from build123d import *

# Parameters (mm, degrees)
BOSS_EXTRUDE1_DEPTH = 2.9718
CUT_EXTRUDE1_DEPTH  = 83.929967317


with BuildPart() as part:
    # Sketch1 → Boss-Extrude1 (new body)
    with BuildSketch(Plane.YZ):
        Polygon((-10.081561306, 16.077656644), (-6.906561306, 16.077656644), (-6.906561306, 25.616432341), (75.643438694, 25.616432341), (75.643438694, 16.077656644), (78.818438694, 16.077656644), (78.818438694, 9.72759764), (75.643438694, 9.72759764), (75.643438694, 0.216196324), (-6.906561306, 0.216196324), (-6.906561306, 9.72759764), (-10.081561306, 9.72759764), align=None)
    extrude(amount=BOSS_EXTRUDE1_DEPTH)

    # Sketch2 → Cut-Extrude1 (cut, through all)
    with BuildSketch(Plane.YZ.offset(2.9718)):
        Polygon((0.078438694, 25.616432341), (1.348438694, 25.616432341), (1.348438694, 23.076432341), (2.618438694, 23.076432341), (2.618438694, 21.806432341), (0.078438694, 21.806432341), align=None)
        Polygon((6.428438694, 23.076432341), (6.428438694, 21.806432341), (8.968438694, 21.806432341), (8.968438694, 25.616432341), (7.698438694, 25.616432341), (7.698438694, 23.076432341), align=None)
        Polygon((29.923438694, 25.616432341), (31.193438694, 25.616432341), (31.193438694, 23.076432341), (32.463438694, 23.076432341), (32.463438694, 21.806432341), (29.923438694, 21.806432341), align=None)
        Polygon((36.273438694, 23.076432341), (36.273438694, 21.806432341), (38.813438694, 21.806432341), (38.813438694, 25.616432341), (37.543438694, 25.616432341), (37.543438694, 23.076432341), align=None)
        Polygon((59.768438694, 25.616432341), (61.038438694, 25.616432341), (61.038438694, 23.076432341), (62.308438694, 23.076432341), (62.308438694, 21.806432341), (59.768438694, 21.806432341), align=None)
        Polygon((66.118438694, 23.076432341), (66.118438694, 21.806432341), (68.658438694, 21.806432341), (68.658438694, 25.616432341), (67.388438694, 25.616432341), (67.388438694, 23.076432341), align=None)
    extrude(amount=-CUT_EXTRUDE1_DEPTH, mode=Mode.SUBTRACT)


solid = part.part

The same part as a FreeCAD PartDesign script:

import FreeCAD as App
import Part
import Sketcher
from FreeCAD import Vector
Q = App.Units.Quantity

doc = App.newDocument("Part")
body = doc.addObject("PartDesign::Body", "Body")

sketch1 = doc.addObject("Sketcher::SketchObject", "Sketch")
body.addObject(sketch1)
sketch1.AttachmentSupport = (doc.YZ_Plane, [""])
sketch1.MapMode = "FlatFace"
sketch1.addGeometry(Part.LineSegment(Vector(-6.9, 16.1, 0), Vector(-10.1, 16.1, 0)), False)
sketch1.addGeometry(Part.LineSegment(Vector(-10.1, 16.1, 0), Vector(-10.1, 9.7, 0)), False)
sketch1.addGeometry(Part.LineSegment(Vector(-10.1, 9.7, 0), Vector(-6.9, 9.7, 0)), False)
sketch1.addGeometry(Part.LineSegment(Vector(-6.9, 9.7, 0), Vector(-6.9, 0.2, 0)), False)
sketch1.addGeometry(Part.LineSegment(Vector(-6.9, 0.2, 0), Vector(75.6, 0.2, 0)), False)
sketch1.addGeometry(Part.LineSegment(Vector(75.6, 0.2, 0), Vector(75.6, 9.7, 0)), False)
sketch1.addGeometry(Part.LineSegment(Vector(75.6, 9.7, 0), Vector(78.8, 9.7, 0)), False)
sketch1.addGeometry(Part.LineSegment(Vector(78.8, 9.7, 0), Vector(78.8, 16.1, 0)), False)
sketch1.addGeometry(Part.LineSegment(Vector(78.8, 16.1, 0), Vector(75.6, 16.1, 0)), False)
sketch1.addGeometry(Part.LineSegment(Vector(75.6, 16.1, 0), Vector(75.6, 25.6, 0)), False)
sketch1.addGeometry(Part.LineSegment(Vector(75.6, 25.6, 0), Vector(-6.9, 25.6, 0)), False)
sketch1.addGeometry(Part.LineSegment(Vector(-6.9, 25.6, 0), Vector(-6.9, 16.1, 0)), False)
sketch1.addConstraint(Sketcher.Constraint("Coincident", 0, 2, 1, 1))
sketch1.addConstraint(Sketcher.Constraint("Coincident", 1, 2, 2, 1))
sketch1.addConstraint(Sketcher.Constraint("Coincident", 2, 2, 3, 1))
sketch1.addConstraint(Sketcher.Constraint("Coincident", 3, 2, 4, 1))
sketch1.addConstraint(Sketcher.Constraint("Coincident", 4, 2, 5, 1))
sketch1.addConstraint(Sketcher.Constraint("Coincident", 5, 2, 6, 1))
sketch1.addConstraint(Sketcher.Constraint("Coincident", 6, 2, 7, 1))
sketch1.addConstraint(Sketcher.Constraint("Coincident", 7, 2, 8, 1))
sketch1.addConstraint(Sketcher.Constraint("Coincident", 8, 2, 9, 1))
sketch1.addConstraint(Sketcher.Constraint("Coincident", 9, 2, 10, 1))
sketch1.addConstraint(Sketcher.Constraint("Coincident", 10, 2, 11, 1))
sketch1.addConstraint(Sketcher.Constraint("Coincident", 11, 2, 0, 1))
sketch1.addConstraint(Sketcher.Constraint("Horizontal", 0))
sketch1.addConstraint(Sketcher.Constraint("Vertical", 1))
sketch1.addConstraint(Sketcher.Constraint("Horizontal", 2))
sketch1.addConstraint(Sketcher.Constraint("Vertical", 3))
sketch1.addConstraint(Sketcher.Constraint("Horizontal", 4))
sketch1.addConstraint(Sketcher.Constraint("Vertical", 5))
sketch1.addConstraint(Sketcher.Constraint("Horizontal", 6))
sketch1.addConstraint(Sketcher.Constraint("Vertical", 7))
sketch1.addConstraint(Sketcher.Constraint("Horizontal", 8))
sketch1.addConstraint(Sketcher.Constraint("Vertical", 9))
sketch1.addConstraint(Sketcher.Constraint("Horizontal", 10))
sketch1.addConstraint(Sketcher.Constraint("Vertical", 11))
sketch1.addConstraint(Sketcher.Constraint("Horizontal", 2, 2, 5, 2))
sketch1.addConstraint(Sketcher.Constraint("Horizontal", 0, 2, 7, 2))
sketch1.addConstraint(Sketcher.Constraint("Vertical", 5, 2, 8, 2))
sketch1.addConstraint(Sketcher.Constraint("Vertical", 3, 2, 10, 2))
sketch1.addConstraint(Sketcher.Constraint("Equal", 2, 6))
sketch1.addConstraint(Sketcher.Constraint("DistanceX", 4, 1, 4, 2, Q("3.25 in")))
sketch1.addConstraint(Sketcher.Constraint("DistanceX", 1, 2, 6, 2, Q("3.5 in")))
sketch1.addConstraint(Sketcher.Constraint("DistanceY", 3, 2, 3, 1, 9.511401))
sketch1.addConstraint(Sketcher.Constraint("DistanceY", 1, 2, 1, 1, 6.350059))
sketch1.addConstraint(Sketcher.Constraint("DistanceY", 9, 1, 9, 2, 9.538776))
sketch1.addConstraint(Sketcher.Constraint("DistanceX", 0, 2, -1, 1, 10.081561))
sketch1.addConstraint(Sketcher.Constraint("DistanceY", -1, 1, 0, 2, 16.077657))
pad1 = doc.addObject("PartDesign::Pad", "Pad")
body.addObject(pad1)
pad1.Profile = sketch1
pad1.Length = Q("0.117 in")

sketch2 = doc.addObject("Sketcher::SketchObject", "Sketch001")
body.addObject(sketch2)
sketch2.AttachmentSupport = (doc.YZ_Plane, [""])
sketch2.MapMode = "FlatFace"
sketch2.AttachmentOffset = App.Placement(Vector(0, 0, 0.117 * 25.4), App.Rotation())
sketch2.addGeometry(Part.LineSegment(Vector(1.3, 25.6, 0), Vector(0.1, 25.6, 0)), False)
sketch2.addGeometry(Part.LineSegment(Vector(0.1, 25.6, 0), Vector(0.1, 21.8, 0)), False)
sketch2.addGeometry(Part.LineSegment(Vector(0.1, 21.8, 0), Vector(2.6, 21.8, 0)), False)
sketch2.addGeometry(Part.LineSegment(Vector(2.6, 21.8, 0), Vector(2.6, 23.1, 0)), False)
sketch2.addGeometry(Part.LineSegment(Vector(2.6, 23.1, 0), Vector(1.3, 23.1, 0)), False)
sketch2.addGeometry(Part.LineSegment(Vector(1.3, 23.1, 0), Vector(1.3, 25.6, 0)), False)
sketch2.addGeometry(Part.LineSegment(Vector(6.4, 23.1, 0), Vector(6.4, 21.8, 0)), False)
sketch2.addGeometry(Part.LineSegment(Vector(6.4, 21.8, 0), Vector(9, 21.8, 0)), False)
sketch2.addGeometry(Part.LineSegment(Vector(9, 21.8, 0), Vector(9, 25.6, 0)), False)
sketch2.addGeometry(Part.LineSegment(Vector(9, 25.6, 0), Vector(7.7, 25.6, 0)), False)
sketch2.addGeometry(Part.LineSegment(Vector(7.7, 25.6, 0), Vector(7.7, 23.1, 0)), False)
sketch2.addGeometry(Part.LineSegment(Vector(7.7, 23.1, 0), Vector(6.4, 23.1, 0)), False)
sketch2.addGeometry(Part.LineSegment(Vector(31.2, 25.6, 0), Vector(29.9, 25.6, 0)), False)
sketch2.addGeometry(Part.LineSegment(Vector(29.9, 25.6, 0), Vector(29.9, 21.8, 0)), False)
sketch2.addGeometry(Part.LineSegment(Vector(29.9, 21.8, 0), Vector(32.5, 21.8, 0)), False)
sketch2.addGeometry(Part.LineSegment(Vector(32.5, 21.8, 0), Vector(32.5, 23.1, 0)), False)
sketch2.addGeometry(Part.LineSegment(Vector(32.5, 23.1, 0), Vector(31.2, 23.1, 0)), False)
sketch2.addGeometry(Part.LineSegment(Vector(31.2, 23.1, 0), Vector(31.2, 25.6, 0)), False)
sketch2.addGeometry(Part.LineSegment(Vector(36.3, 23.1, 0), Vector(36.3, 21.8, 0)), False)
sketch2.addGeometry(Part.LineSegment(Vector(36.3, 21.8, 0), Vector(38.8, 21.8, 0)), False)
sketch2.addGeometry(Part.LineSegment(Vector(38.8, 21.8, 0), Vector(38.8, 25.6, 0)), False)
sketch2.addGeometry(Part.LineSegment(Vector(38.8, 25.6, 0), Vector(37.5, 25.6, 0)), False)
sketch2.addGeometry(Part.LineSegment(Vector(37.5, 25.6, 0), Vector(37.5, 23.1, 0)), False)
sketch2.addGeometry(Part.LineSegment(Vector(37.5, 23.1, 0), Vector(36.3, 23.1, 0)), False)
sketch2.addGeometry(Part.LineSegment(Vector(61, 25.6, 0), Vector(59.8, 25.6, 0)), False)
sketch2.addGeometry(Part.LineSegment(Vector(59.8, 25.6, 0), Vector(59.8, 21.8, 0)), False)
sketch2.addGeometry(Part.LineSegment(Vector(59.8, 21.8, 0), Vector(62.3, 21.8, 0)), False)
sketch2.addGeometry(Part.LineSegment(Vector(62.3, 21.8, 0), Vector(62.3, 23.1, 0)), False)
sketch2.addGeometry(Part.LineSegment(Vector(62.3, 23.1, 0), Vector(61, 23.1, 0)), False)
sketch2.addGeometry(Part.LineSegment(Vector(61, 23.1, 0), Vector(61, 25.6, 0)), False)
sketch2.addGeometry(Part.LineSegment(Vector(66.1, 23.1, 0), Vector(66.1, 21.8, 0)), False)
sketch2.addGeometry(Part.LineSegment(Vector(66.1, 21.8, 0), Vector(68.7, 21.8, 0)), False)
sketch2.addGeometry(Part.LineSegment(Vector(68.7, 21.8, 0), Vector(68.7, 25.6, 0)), False)
sketch2.addGeometry(Part.LineSegment(Vector(68.7, 25.6, 0), Vector(67.4, 25.6, 0)), False)
sketch2.addGeometry(Part.LineSegment(Vector(67.4, 25.6, 0), Vector(67.4, 23.1, 0)), False)
sketch2.addGeometry(Part.LineSegment(Vector(67.4, 23.1, 0), Vector(66.1, 23.1, 0)), False)
sketch2.addConstraint(Sketcher.Constraint("Coincident", 0, 2, 1, 1))
sketch2.addConstraint(Sketcher.Constraint("Coincident", 1, 2, 2, 1))
sketch2.addConstraint(Sketcher.Constraint("Coincident", 2, 2, 3, 1))
sketch2.addConstraint(Sketcher.Constraint("Coincident", 3, 2, 4, 1))
sketch2.addConstraint(Sketcher.Constraint("Coincident", 4, 2, 5, 1))
sketch2.addConstraint(Sketcher.Constraint("Coincident", 5, 2, 0, 1))
sketch2.addConstraint(Sketcher.Constraint("Coincident", 6, 2, 7, 1))
sketch2.addConstraint(Sketcher.Constraint("Coincident", 7, 2, 8, 1))
sketch2.addConstraint(Sketcher.Constraint("Coincident", 8, 2, 9, 1))
sketch2.addConstraint(Sketcher.Constraint("Coincident", 9, 2, 10, 1))
sketch2.addConstraint(Sketcher.Constraint("Coincident", 10, 2, 11, 1))
sketch2.addConstraint(Sketcher.Constraint("Coincident", 11, 2, 6, 1))
sketch2.addConstraint(Sketcher.Constraint("Coincident", 12, 2, 13, 1))
sketch2.addConstraint(Sketcher.Constraint("Coincident", 13, 2, 14, 1))
sketch2.addConstraint(Sketcher.Constraint("Coincident", 14, 2, 15, 1))
sketch2.addConstraint(Sketcher.Constraint("Coincident", 15, 2, 16, 1))
sketch2.addConstraint(Sketcher.Constraint("Coincident", 16, 2, 17, 1))
sketch2.addConstraint(Sketcher.Constraint("Coincident", 17, 2, 12, 1))
sketch2.addConstraint(Sketcher.Constraint("Coincident", 18, 2, 19, 1))
sketch2.addConstraint(Sketcher.Constraint("Coincident", 19, 2, 20, 1))
sketch2.addConstraint(Sketcher.Constraint("Coincident", 20, 2, 21, 1))
sketch2.addConstraint(Sketcher.Constraint("Coincident", 21, 2, 22, 1))
sketch2.addConstraint(Sketcher.Constraint("Coincident", 22, 2, 23, 1))
sketch2.addConstraint(Sketcher.Constraint("Coincident", 23, 2, 18, 1))
sketch2.addConstraint(Sketcher.Constraint("Coincident", 24, 2, 25, 1))
sketch2.addConstraint(Sketcher.Constraint("Coincident", 25, 2, 26, 1))
sketch2.addConstraint(Sketcher.Constraint("Coincident", 26, 2, 27, 1))
sketch2.addConstraint(Sketcher.Constraint("Coincident", 27, 2, 28, 1))
sketch2.addConstraint(Sketcher.Constraint("Coincident", 28, 2, 29, 1))
sketch2.addConstraint(Sketcher.Constraint("Coincident", 29, 2, 24, 1))
sketch2.addConstraint(Sketcher.Constraint("Coincident", 30, 2, 31, 1))
sketch2.addConstraint(Sketcher.Constraint("Coincident", 31, 2, 32, 1))
sketch2.addConstraint(Sketcher.Constraint("Coincident", 32, 2, 33, 1))
sketch2.addConstraint(Sketcher.Constraint("Coincident", 33, 2, 34, 1))
sketch2.addConstraint(Sketcher.Constraint("Coincident", 34, 2, 35, 1))
sketch2.addConstraint(Sketcher.Constraint("Coincident", 35, 2, 30, 1))
sketch2.addConstraint(Sketcher.Constraint("Horizontal", 0))
sketch2.addConstraint(Sketcher.Constraint("Vertical", 1))
sketch2.addConstraint(Sketcher.Constraint("Horizontal", 2))
sketch2.addConstraint(Sketcher.Constraint("Vertical", 3))
sketch2.addConstraint(Sketcher.Constraint("Horizontal", 4))
sketch2.addConstraint(Sketcher.Constraint("Vertical", 5))
sketch2.addConstraint(Sketcher.Constraint("Vertical", 6))
sketch2.addConstraint(Sketcher.Constraint("Horizontal", 7))
sketch2.addConstraint(Sketcher.Constraint("Vertical", 8))
sketch2.addConstraint(Sketcher.Constraint("Horizontal", 9))
sketch2.addConstraint(Sketcher.Constraint("Vertical", 10))
sketch2.addConstraint(Sketcher.Constraint("Horizontal", 11))
sketch2.addConstraint(Sketcher.Constraint("Horizontal", 12))
sketch2.addConstraint(Sketcher.Constraint("Vertical", 13))
sketch2.addConstraint(Sketcher.Constraint("Horizontal", 14))
sketch2.addConstraint(Sketcher.Constraint("Vertical", 15))
sketch2.addConstraint(Sketcher.Constraint("Horizontal", 16))
sketch2.addConstraint(Sketcher.Constraint("Vertical", 17))
sketch2.addConstraint(Sketcher.Constraint("Vertical", 18))
sketch2.addConstraint(Sketcher.Constraint("Horizontal", 19))
sketch2.addConstraint(Sketcher.Constraint("Vertical", 20))
sketch2.addConstraint(Sketcher.Constraint("Horizontal", 21))
sketch2.addConstraint(Sketcher.Constraint("Vertical", 22))
sketch2.addConstraint(Sketcher.Constraint("Horizontal", 23))
sketch2.addConstraint(Sketcher.Constraint("Horizontal", 24))
sketch2.addConstraint(Sketcher.Constraint("Vertical", 25))
sketch2.addConstraint(Sketcher.Constraint("Horizontal", 26))
sketch2.addConstraint(Sketcher.Constraint("Vertical", 27))
sketch2.addConstraint(Sketcher.Constraint("Horizontal", 28))
sketch2.addConstraint(Sketcher.Constraint("Vertical", 29))
sketch2.addConstraint(Sketcher.Constraint("Vertical", 30))
sketch2.addConstraint(Sketcher.Constraint("Horizontal", 31))
sketch2.addConstraint(Sketcher.Constraint("Vertical", 32))
sketch2.addConstraint(Sketcher.Constraint("Horizontal", 33))
sketch2.addConstraint(Sketcher.Constraint("Vertical", 34))
sketch2.addConstraint(Sketcher.Constraint("Horizontal", 35))
sketch2.addConstraint(Sketcher.Constraint("Horizontal", 2, 2, 6, 2))
sketch2.addConstraint(Sketcher.Constraint("Horizontal", 5, 2, 8, 2))
sketch2.addConstraint(Sketcher.Constraint("Horizontal", 4, 2, 10, 2))
sketch2.addConstraint(Sketcher.Constraint("Horizontal", 9, 2, 12, 2))
sketch2.addConstraint(Sketcher.Constraint("Horizontal", 7, 2, 13, 2))
sketch2.addConstraint(Sketcher.Constraint("Horizontal", 11, 2, 15, 2))
sketch2.addConstraint(Sketcher.Constraint("Horizontal", 14, 2, 18, 2))
sketch2.addConstraint(Sketcher.Constraint("Horizontal", 17, 2, 20, 2))
sketch2.addConstraint(Sketcher.Constraint("Horizontal", 16, 2, 22, 2))
sketch2.addConstraint(Sketcher.Constraint("Horizontal", 21, 2, 24, 2))
sketch2.addConstraint(Sketcher.Constraint("Horizontal", 19, 2, 25, 2))
sketch2.addConstraint(Sketcher.Constraint("Horizontal", 23, 2, 27, 2))
sketch2.addConstraint(Sketcher.Constraint("Horizontal", 26, 2, 30, 2))
sketch2.addConstraint(Sketcher.Constraint("Horizontal", 29, 2, 32, 2))
sketch2.addConstraint(Sketcher.Constraint("Horizontal", 28, 2, 34, 2))
sketch2.addConstraint(Sketcher.Constraint("Equal", 0, 4))
sketch2.addConstraint(Sketcher.Constraint("Equal", 2, 7))
sketch2.addConstraint(Sketcher.Constraint("Equal", 4, 9))
sketch2.addConstraint(Sketcher.Constraint("Equal", 11, 12))
sketch2.addConstraint(Sketcher.Constraint("Equal", 7, 14))
sketch2.addConstraint(Sketcher.Constraint("Equal", 14, 19))
sketch2.addConstraint(Sketcher.Constraint("Equal", 16, 21))
sketch2.addConstraint(Sketcher.Constraint("Equal", 23, 24))
sketch2.addConstraint(Sketcher.Constraint("Equal", 19, 26))
sketch2.addConstraint(Sketcher.Constraint("Equal", 26, 31))
sketch2.addConstraint(Sketcher.Constraint("Equal", 28, 33))
sketch2.addConstraint(Sketcher.Constraint("Equal", 35, 3))
sketch2.addConstraint(Sketcher.Constraint("Equal", 31, 5))
sketch2.addConstraint(Sketcher.Constraint("DistanceX", 2, 1, 2, 2, Q("0.1 in")))
sketch2.addConstraint(Sketcher.Constraint("DistanceX", 4, 2, 6, 2, Q("0.2 in")))
sketch2.addConstraint(Sketcher.Constraint("DistanceX", 16, 2, 18, 2, Q("0.2 in")))
sketch2.addConstraint(Sketcher.Constraint("DistanceX", 28, 2, 30, 2, Q("0.2 in")))
sketch2.addConstraint(Sketcher.Constraint("DistanceX", 8, 2, 12, 2, Q("0.825 in")))
sketch2.addConstraint(Sketcher.Constraint("DistanceX", 20, 2, 24, 2, Q("0.825 in")))
sketch2.addConstraint(Sketcher.Constraint("DistanceX", -1, 1, 0, 2, 0.078439))
sketch2.addConstraint(Sketcher.Constraint("DistanceY", -1, 1, 0, 2, 25.616432))
pocket1 = doc.addObject("PartDesign::Pocket", "Pocket")
body.addObject(pocket1)
pocket1.Profile = sketch2
pocket1.Type = "ThroughAll"

doc.recompute()
